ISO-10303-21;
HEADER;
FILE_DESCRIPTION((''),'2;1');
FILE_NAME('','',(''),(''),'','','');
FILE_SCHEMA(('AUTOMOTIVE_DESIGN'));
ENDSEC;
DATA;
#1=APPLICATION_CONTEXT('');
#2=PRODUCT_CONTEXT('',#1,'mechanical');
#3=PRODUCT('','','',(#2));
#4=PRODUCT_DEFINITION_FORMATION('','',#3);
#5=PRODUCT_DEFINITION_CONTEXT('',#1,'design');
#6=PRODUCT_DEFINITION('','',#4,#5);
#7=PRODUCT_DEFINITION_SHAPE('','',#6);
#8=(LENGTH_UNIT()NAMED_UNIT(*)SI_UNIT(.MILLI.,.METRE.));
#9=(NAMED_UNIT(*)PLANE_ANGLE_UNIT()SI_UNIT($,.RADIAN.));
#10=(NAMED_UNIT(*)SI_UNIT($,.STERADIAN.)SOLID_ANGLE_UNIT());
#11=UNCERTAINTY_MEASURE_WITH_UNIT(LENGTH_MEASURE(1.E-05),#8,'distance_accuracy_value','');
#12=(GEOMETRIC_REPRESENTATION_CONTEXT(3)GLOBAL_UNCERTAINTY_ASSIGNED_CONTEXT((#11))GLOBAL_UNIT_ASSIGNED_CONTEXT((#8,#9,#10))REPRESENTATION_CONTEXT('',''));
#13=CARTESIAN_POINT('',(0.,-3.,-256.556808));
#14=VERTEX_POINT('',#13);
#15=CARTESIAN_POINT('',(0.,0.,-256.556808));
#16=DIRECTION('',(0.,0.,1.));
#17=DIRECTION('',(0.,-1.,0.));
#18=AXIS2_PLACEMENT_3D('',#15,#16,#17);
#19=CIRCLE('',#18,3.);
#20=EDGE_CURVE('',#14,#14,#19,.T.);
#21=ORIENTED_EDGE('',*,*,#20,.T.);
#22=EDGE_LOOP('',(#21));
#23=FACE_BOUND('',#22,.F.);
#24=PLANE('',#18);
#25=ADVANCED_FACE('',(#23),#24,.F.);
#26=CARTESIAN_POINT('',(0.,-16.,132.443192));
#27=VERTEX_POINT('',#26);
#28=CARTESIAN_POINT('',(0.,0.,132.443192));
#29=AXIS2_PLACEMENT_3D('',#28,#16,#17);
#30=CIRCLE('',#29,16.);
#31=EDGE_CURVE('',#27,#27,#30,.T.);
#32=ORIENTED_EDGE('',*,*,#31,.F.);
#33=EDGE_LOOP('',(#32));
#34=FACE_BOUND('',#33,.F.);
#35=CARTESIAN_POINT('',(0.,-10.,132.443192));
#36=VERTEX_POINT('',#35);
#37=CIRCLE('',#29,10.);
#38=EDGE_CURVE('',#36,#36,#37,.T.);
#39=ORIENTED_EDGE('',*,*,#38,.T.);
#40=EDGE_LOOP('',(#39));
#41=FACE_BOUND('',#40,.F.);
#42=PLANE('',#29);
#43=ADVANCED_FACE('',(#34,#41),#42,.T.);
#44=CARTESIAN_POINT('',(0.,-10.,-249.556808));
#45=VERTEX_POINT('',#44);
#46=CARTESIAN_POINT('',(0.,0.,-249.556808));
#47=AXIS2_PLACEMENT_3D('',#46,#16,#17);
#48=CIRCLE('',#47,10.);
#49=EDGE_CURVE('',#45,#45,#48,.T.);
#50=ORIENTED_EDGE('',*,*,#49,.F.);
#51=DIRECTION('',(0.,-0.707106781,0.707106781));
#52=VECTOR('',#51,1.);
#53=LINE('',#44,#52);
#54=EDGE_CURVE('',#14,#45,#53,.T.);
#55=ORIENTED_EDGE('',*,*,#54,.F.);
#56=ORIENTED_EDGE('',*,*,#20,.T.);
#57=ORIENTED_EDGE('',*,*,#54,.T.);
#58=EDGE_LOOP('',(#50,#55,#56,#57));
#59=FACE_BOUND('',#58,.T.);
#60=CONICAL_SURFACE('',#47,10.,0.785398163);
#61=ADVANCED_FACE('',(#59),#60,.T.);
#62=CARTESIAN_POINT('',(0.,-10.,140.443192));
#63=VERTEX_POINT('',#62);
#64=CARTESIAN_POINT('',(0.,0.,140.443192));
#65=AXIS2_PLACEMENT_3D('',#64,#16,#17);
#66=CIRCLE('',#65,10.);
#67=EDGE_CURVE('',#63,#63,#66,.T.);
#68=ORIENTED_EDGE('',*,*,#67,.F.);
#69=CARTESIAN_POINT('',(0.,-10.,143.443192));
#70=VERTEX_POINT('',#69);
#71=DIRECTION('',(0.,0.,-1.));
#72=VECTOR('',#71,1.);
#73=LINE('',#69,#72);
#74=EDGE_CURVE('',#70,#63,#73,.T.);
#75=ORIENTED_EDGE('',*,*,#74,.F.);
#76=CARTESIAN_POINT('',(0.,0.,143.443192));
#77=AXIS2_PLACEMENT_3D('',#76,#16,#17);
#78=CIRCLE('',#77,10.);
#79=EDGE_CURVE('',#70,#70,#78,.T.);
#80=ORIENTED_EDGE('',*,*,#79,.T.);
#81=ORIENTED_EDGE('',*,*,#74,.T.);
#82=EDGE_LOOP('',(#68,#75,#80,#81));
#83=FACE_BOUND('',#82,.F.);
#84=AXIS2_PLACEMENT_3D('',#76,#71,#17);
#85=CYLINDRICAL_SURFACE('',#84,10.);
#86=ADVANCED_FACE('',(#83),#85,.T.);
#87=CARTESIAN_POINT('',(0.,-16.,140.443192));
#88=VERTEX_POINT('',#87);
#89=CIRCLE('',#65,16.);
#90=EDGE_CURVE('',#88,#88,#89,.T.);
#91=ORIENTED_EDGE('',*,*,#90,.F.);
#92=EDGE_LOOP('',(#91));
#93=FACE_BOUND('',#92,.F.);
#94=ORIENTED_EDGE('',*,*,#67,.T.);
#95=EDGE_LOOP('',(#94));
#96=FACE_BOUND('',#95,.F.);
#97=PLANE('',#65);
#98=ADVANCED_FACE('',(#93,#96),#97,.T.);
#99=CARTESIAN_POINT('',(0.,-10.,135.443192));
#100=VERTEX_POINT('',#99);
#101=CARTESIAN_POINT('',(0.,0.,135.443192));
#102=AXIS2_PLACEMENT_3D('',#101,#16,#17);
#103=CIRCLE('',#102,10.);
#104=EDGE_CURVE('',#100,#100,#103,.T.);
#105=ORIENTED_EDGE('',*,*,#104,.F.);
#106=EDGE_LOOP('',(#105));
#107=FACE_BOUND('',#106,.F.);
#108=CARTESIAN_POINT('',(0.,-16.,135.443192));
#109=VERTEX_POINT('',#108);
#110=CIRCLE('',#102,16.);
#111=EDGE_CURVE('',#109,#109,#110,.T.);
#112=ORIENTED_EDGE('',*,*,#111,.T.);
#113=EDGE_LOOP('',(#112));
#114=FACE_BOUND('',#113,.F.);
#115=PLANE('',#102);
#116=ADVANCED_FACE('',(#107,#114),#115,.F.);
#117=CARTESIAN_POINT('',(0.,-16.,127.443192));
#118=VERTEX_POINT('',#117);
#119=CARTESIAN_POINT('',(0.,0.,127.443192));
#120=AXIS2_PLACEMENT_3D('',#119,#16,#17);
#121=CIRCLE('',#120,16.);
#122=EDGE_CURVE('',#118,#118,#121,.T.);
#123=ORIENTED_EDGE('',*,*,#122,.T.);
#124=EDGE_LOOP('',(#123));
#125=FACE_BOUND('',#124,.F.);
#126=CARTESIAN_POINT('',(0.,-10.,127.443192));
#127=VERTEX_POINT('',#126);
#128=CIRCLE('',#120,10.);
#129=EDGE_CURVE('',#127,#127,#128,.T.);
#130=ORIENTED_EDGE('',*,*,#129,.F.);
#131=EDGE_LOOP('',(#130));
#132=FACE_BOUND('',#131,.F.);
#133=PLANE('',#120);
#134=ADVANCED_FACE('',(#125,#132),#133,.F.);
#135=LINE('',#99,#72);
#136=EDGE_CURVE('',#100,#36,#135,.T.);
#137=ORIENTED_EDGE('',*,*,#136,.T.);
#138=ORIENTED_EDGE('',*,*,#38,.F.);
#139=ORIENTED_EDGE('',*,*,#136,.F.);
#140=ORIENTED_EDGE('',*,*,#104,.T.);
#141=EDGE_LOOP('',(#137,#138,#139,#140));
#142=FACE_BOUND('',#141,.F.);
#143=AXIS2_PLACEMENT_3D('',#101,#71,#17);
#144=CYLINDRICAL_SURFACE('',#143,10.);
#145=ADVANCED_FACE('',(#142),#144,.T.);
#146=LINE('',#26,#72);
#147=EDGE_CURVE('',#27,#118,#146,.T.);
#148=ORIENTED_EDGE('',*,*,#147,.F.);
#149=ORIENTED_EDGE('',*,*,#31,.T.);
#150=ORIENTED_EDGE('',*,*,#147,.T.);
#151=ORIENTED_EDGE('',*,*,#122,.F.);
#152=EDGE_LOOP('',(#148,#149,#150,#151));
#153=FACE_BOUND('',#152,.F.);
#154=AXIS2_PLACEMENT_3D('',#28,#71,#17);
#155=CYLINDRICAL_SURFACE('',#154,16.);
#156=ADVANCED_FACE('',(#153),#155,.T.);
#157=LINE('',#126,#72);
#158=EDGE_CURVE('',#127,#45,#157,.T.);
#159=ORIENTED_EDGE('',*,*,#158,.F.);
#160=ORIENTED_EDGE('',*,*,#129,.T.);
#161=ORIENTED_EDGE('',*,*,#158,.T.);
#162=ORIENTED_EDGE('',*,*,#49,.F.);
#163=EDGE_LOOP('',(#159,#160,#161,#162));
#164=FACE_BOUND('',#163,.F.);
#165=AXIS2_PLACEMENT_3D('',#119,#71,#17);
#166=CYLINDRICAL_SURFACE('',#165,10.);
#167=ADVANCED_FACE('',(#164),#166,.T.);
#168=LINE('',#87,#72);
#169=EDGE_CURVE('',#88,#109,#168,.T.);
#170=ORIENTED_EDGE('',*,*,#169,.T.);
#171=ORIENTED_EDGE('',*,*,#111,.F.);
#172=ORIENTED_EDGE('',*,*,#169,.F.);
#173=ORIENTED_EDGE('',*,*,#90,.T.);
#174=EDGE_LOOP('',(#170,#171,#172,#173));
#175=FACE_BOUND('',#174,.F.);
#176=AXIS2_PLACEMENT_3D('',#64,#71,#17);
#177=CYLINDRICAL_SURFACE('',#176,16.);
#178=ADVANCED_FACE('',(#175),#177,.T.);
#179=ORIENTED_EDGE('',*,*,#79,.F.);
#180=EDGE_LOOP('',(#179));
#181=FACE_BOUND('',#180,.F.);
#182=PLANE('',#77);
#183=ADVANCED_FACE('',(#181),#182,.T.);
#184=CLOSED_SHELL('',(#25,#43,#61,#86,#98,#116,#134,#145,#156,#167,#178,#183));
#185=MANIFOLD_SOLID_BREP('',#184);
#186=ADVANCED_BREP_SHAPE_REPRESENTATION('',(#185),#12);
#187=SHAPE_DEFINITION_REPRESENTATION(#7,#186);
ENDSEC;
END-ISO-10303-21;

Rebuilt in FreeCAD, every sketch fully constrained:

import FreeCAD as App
import Part
import Sketcher
from FreeCAD import Vector


def edges_at(feature, points):
    """Names of the edges that pass closest to the given points."""
    edges = feature.Shape.Edges
    near = lambda p: min(range(len(edges)), key=lambda i: edges[i].distToShape(Part.Vertex(*p))[0])
    return sorted({f"Edge{near(p) + 1}" for p in points})

doc = App.newDocument("Part")
body = doc.addObject("PartDesign::Body", "Body")

# Sketch on YZ plane
sketch1 = body.newObject("Sketcher::SketchObject", "Sketch")
sketch1.AttachmentSupport = (doc.getObject("YZ_Plane"), [""])
sketch1.MapMode = "FlatFace"
sketch1.addGeometry(Part.LineSegment(Vector(-10, -256.556808, 0), Vector(0, -256.556808, 0)), False)
sketch1.addGeometry(Part.LineSegment(Vector(0, -256.556808, 0), Vector(0, 143.443192, 0)), False)
sketch1.addGeometry(Part.LineSegment(Vector(0, 143.443192, 0), Vector(-10, 143.443192, 0)), False)
sketch1.addGeometry(Part.LineSegment(Vector(-10, 143.443192, 0), Vector(-10, 140.443192, 0)), False)
sketch1.addGeometry(Part.LineSegment(Vector(-10, 140.443192, 0), Vector(-16, 140.443192, 0)), False)
sketch1.addGeometry(Part.LineSegment(Vector(-16, 140.443192, 0), Vector(-16, 135.443192, 0)), False)
sketch1.addGeometry(Part.LineSegment(Vector(-16, 135.443192, 0), Vector(-10, 135.443192, 0)), False)
sketch1.addGeometry(Part.LineSegment(Vector(-10, 135.443192, 0), Vector(-10, 132.443192, 0)), False)
sketch1.addGeometry(Part.LineSegment(Vector(-10, 132.443192, 0), Vector(-16, 132.443192, 0)), False)
sketch1.addGeometry(Part.LineSegment(Vector(-16, 132.443192, 0), Vector(-16, 127.443192, 0)), False)
sketch1.addGeometry(Part.LineSegment(Vector(-16, 127.443192, 0), Vector(-10, 127.443192, 0)), False)
sketch1.addGeometry(Part.LineSegment(Vector(-10, 127.443192, 0), Vector(-10, -256.556808, 0)), False)
sketch1.addConstraint(Sketcher.Constraint("Coincident", 0, 2, 1, 1))
sketch1.addConstraint(Sketcher.Constraint("Coincident", 1, 2, 2, 1))
sketch1.addConstraint(Sketcher.Constraint("Coincident", 2, 2, 3, 1))
sketch1.addConstraint(Sketcher.Constraint("Coincident", 3, 2, 4, 1))
sketch1.addConstraint(Sketcher.Constraint("Coincident", 4, 2, 5, 1))
sketch1.addConstraint(Sketcher.Constraint("Coincident", 5, 2, 6, 1))
sketch1.addConstraint(Sketcher.Constraint("Coincident", 6, 2, 7, 1))
sketch1.addConstraint(Sketcher.Constraint("Coincident", 7, 2, 8, 1))
sketch1.addConstraint(Sketcher.Constraint("Coincident", 8, 2, 9, 1))
sketch1.addConstraint(Sketcher.Constraint("Coincident", 9, 2, 10, 1))
sketch1.addConstraint(Sketcher.Constraint("Coincident", 10, 2, 11, 1))
sketch1.addConstraint(Sketcher.Constraint("Coincident", 11, 2, 0, 1))
sketch1.addConstraint(Sketcher.Constraint("Horizontal", 0))
sketch1.addConstraint(Sketcher.Constraint("Vertical", 1))
sketch1.addConstraint(Sketcher.Constraint("Horizontal", 2))
sketch1.addConstraint(Sketcher.Constraint("Vertical", 3))
sketch1.addConstraint(Sketcher.Constraint("Horizontal", 4))
sketch1.addConstraint(Sketcher.Constraint("Vertical", 5))
sketch1.addConstraint(Sketcher.Constraint("Horizontal", 6))
sketch1.addConstraint(Sketcher.Constraint("Vertical", 7))
sketch1.addConstraint(Sketcher.Constraint("Horizontal", 8))
sketch1.addConstraint(Sketcher.Constraint("Vertical", 9))
sketch1.addConstraint(Sketcher.Constraint("Horizontal", 10))
sketch1.addConstraint(Sketcher.Constraint("Vertical", 11))
sketch1.addConstraint(Sketcher.Constraint("PointOnObject", 0, 2, -2))
sketch1.addConstraint(Sketcher.Constraint("Vertical", 3, 2, 6, 2))
sketch1.addConstraint(Sketcher.Constraint("Vertical", 5, 2, 8, 2))
sketch1.addConstraint(Sketcher.Constraint("Vertical", 7, 2, 10, 2))
sketch1.addConstraint(Sketcher.Constraint("Equal", 3, 7))
sketch1.addConstraint(Sketcher.Constraint("Equal", 5, 9))
sketch1.addConstraint(Sketcher.Constraint("DistanceX", 0, 1, 0, 2, 10.0))
sketch1.addConstraint(Sketcher.Constraint("DistanceX", 4, 2, 4, 1, 6.0))
sketch1.addConstraint(Sketcher.Constraint("DistanceY", 1, 1, 1, 2, 400.0))
sketch1.addConstraint(Sketcher.Constraint("DistanceY", 3, 2, 3, 1, 3.0))
sketch1.addConstraint(Sketcher.Constraint("DistanceY", 5, 2, 5, 1, 5.0))
sketch1.addConstraint(Sketcher.Constraint("DistanceY", 0, 2, -1, 1, 256.556808))
revolution = body.newObject("PartDesign::Revolution", "Revolution")
revolution.Profile = sketch1
revolution.ReferenceAxis = (sketch1, ["V_Axis"])
revolution.Angle = 360
doc.recompute()

chamfer = body.newObject("PartDesign::Chamfer", "Chamfer")
chamfer.Base = (revolution, edges_at(revolution, [(0, 10, -256.557)]))
chamfer.Size = 7

doc.recompute()
